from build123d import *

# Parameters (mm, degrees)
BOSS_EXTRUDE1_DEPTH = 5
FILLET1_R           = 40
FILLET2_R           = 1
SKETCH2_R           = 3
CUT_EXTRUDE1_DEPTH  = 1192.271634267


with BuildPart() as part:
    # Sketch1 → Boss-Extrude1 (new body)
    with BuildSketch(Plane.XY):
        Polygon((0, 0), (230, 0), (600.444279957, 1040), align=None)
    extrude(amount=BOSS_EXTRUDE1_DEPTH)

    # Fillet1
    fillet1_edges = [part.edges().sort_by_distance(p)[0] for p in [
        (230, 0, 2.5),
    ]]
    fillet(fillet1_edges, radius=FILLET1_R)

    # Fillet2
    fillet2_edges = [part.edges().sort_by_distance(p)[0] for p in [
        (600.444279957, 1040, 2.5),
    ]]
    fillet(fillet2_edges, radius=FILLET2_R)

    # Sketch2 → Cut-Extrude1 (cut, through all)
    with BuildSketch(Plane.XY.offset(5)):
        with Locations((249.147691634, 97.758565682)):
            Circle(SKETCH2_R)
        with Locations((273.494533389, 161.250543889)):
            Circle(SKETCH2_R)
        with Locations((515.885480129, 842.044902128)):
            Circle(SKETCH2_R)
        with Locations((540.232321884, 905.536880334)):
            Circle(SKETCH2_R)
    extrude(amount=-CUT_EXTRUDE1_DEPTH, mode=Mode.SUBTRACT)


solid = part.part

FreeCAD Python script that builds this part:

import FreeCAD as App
import Part
import Sketcher
Q = App.Units.Quantity


def edges_at(feature, points):
    """Names of the edges that pass closest to the given points."""
    edges = feature.Shape.Edges
    near = lambda p: min(range(len(edges)), key=lambda i: edges[i].distToShape(Part.Vertex(*p))[0])
    return sorted({f"Edge{near(p) + 1}" for p in points})


def add_polygon(sketch, points):
    """Adds a closed chain of lines whose ends are joined by coincident constraints."""
    first, n = sketch.GeometryCount, len(points)
    for a, b in zip(points, points[1:] + points[:1]):
        sketch.addGeometry(Part.LineSegment(App.Vector(*a, 0), App.Vector(*b, 0)), False)
    for i in range(n):
        sketch.addConstraint(Sketcher.Constraint("Coincident", first + i, 2, first + (i + 1) % n, 1))

doc = App.newDocument("Part")
body = doc.addObject("PartDesign::Body", "Body")

# Sketch on XY plane
sketch1 = body.newObject("Sketcher::SketchObject", "Sketch")
sketch1.AttachmentSupport = (doc.getObject("XY_Plane"), [""])
sketch1.MapMode = "FlatFace"
add_polygon(sketch1, [(0, 0), (230, 0), (600, 1040)])  # lines 0-2
sketch1.addConstraint(Sketcher.Constraint("Horizontal", 0))
sketch1.addConstraint(Sketcher.Constraint("Coincident", 2, 2, -1, 1))
sketch1.addConstraint(Sketcher.Constraint("DistanceX", 0, 1, 0, 2, Q("230 mm")))
sketch1.addConstraint(Sketcher.Constraint("Angle", 2, Q("-120 deg")))
sketch1.addConstraint(Sketcher.Constraint("DistanceY", -1, 1, 1, 2, Q("1040 mm")))
pad1 = body.newObject("PartDesign::Pad", "Pad")
pad1.Profile = sketch1
pad1.Length = 5
doc.recompute()

fillet = body.newObject("PartDesign::Fillet", "Fillet")
fillet.Base = (pad1, edges_at(pad1, [(230, 0, 2.5)]))
fillet.Radius = 40
doc.recompute()

fillet2 = body.newObject("PartDesign::Fillet", "Fillet001")
fillet2.Base = (fillet, edges_at(fillet, [(600.444, 1040, 2.5)]))
fillet2.Radius = 1

# Sketch on XY plane
sketch2 = body.newObject("Sketcher::SketchObject", "Sketch001")
sketch2.AttachmentSupport = (doc.getObject("XY_Plane"), [""])
sketch2.MapMode = "FlatFace"
sketch2.AttachmentOffset = App.Placement(App.Vector(0, 0, 5), App.Rotation())
sketch2.addGeometry(Part.Circle(App.Vector(249.1, 97.8, 0), App.Vector(0, 0, 1), 3), False)
sketch2.addGeometry(Part.Circle(App.Vector(273.5, 161.3, 0), App.Vector(0, 0, 1), 3), False)
sketch2.addGeometry(Part.Circle(App.Vector(515.9, 842, 0), App.Vector(0, 0, 1), 3), False)
sketch2.addGeometry(Part.Circle(App.Vector(540.2, 905.5, 0), App.Vector(0, 0, 1), 3), False)
sketch2.addConstraint(Sketcher.Constraint("Equal", 0, 1))
sketch2.addConstraint(Sketcher.Constraint("Equal", 1, 2))
sketch2.addConstraint(Sketcher.Constraint("Equal", 2, 3))
sketch2.addConstraint(Sketcher.Constraint("Diameter", 0, Q("6 mm")))
sketch2.addConstraint(Sketcher.Constraint("DistanceX", -1, 1, 0, 3, Q("249.147692 mm")))
sketch2.addConstraint(Sketcher.Constraint("DistanceX", -1, 1, 2, 3, Q("515.88548 mm")))
sketch2.addConstraint(Sketcher.Constraint("DistanceX", -1, 1, 3, 3, Q("540.232322 mm")))
sketch2.addConstraint(Sketcher.Constraint("DistanceY", -1, 1, 3, 3, Q("905.53688 mm")))
sketch2.addConstraint(Sketcher.Constraint("DistanceX", 0, 3, 1, 3, Q("24.346842 mm")))
sketch2.addConstraint(Sketcher.Constraint("DistanceY", 0, 3, 1, 3, Q("63.491978 mm")))
sketch2.addConstraint(Sketcher.Constraint("DistanceY", 1, 3, 2, 3, Q("680.794358 mm")))
sketch2.addConstraint(Sketcher.Constraint("DistanceY", 2, 3, 3, 3, Q("63.491978 mm")))
pocket1 = body.newObject("PartDesign::Pocket", "Pocket")
pocket1.Profile = sketch2
pocket1.Type = "ThroughAll"

doc.recompute()
